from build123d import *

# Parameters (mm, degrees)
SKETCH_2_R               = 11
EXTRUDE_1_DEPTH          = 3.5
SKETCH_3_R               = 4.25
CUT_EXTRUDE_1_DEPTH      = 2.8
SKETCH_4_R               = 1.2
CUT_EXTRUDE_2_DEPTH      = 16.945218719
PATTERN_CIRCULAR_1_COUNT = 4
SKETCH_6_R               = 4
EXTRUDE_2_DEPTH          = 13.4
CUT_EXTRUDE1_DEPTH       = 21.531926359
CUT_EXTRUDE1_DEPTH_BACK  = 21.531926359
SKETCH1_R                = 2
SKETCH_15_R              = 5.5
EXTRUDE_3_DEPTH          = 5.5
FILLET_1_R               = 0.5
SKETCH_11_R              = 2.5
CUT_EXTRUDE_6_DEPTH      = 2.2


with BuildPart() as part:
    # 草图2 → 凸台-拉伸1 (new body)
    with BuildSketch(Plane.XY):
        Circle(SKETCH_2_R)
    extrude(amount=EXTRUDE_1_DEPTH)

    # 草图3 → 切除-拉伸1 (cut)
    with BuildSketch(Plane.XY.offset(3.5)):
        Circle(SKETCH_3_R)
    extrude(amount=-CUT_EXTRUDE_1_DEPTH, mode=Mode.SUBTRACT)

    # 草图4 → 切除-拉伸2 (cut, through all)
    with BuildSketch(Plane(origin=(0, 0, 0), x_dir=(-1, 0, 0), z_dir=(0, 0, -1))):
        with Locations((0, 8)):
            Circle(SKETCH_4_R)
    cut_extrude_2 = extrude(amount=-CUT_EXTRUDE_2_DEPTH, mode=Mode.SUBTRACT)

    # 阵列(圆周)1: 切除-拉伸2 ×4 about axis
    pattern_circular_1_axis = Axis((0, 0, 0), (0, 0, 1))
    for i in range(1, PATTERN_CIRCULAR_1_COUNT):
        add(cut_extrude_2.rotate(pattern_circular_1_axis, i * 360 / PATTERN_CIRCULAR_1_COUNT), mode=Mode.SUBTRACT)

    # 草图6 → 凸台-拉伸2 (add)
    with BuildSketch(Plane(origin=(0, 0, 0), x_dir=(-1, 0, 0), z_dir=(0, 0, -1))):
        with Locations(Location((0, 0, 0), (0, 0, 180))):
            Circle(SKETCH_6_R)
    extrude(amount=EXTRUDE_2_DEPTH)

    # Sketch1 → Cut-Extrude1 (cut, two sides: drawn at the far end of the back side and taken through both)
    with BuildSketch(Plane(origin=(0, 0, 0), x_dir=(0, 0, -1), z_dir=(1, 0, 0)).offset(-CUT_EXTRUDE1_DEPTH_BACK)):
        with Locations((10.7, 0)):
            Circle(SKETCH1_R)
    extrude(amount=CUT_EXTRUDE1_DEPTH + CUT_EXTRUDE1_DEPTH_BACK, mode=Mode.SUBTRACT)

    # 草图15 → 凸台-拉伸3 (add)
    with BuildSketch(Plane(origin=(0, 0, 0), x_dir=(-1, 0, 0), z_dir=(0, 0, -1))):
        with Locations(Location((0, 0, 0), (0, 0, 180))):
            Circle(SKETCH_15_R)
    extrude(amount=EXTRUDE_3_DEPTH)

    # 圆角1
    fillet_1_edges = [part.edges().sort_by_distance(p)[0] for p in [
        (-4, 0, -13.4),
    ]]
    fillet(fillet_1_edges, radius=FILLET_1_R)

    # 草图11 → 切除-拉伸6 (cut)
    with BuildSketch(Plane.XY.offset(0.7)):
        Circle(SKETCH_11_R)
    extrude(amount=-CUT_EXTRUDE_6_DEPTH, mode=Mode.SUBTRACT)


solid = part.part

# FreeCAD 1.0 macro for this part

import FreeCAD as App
import Part
import Sketcher
from FreeCAD import Vector
Q = App.Units.Quantity


def edges_at(feature, points):
    """Names of the edges that pass closest to the given points."""
    edges = feature.Shape.Edges
    near = lambda p: min(range(len(edges)), key=lambda i: edges[i].distToShape(Part.Vertex(*p))[0])
    return sorted({f"Edge{near(p) + 1}" for p in points})

doc = App.newDocument("Part")
body = doc.addObject("PartDesign::Body", "Body")

# Sketch on XY plane
sketch1 = doc.addObject("Sketcher::SketchObject", "Sketch")
body.addObject(sketch1)
sketch1.AttachmentSupport = (doc.XY_Plane, [""])
sketch1.MapMode = "FlatFace"
sketch1.addGeometry(Part.Circle(Vector(0, 0, 0), Vector(0, 0, 1), 11), False)
sketch1.addConstraint([
    Sketcher.Constraint("Coincident", 0, 3, -1, 1),
    Sketcher.Constraint("Diameter", 0, Q("22 mm")),
])
pad1 = doc.addObject("PartDesign::Pad", "Pad")
body.addObject(pad1)
pad1.Profile = sketch1
pad1.Length = 3.5

# Sketch on XY plane
sketch2 = doc.addObject("Sketcher::SketchObject", "Sketch001")
body.addObject(sketch2)
sketch2.AttachmentSupport = (doc.XY_Plane, [""])
sketch2.MapMode = "FlatFace"
sketch2.AttachmentOffset = App.Placement(Vector(0, 0, 3.5), App.Rotation())
sketch2.addGeometry(Part.Circle(Vector(0, 0, 0), Vector(0, 0, 1), 4.2), False)
sketch2.addConstraint([
    Sketcher.Constraint("Coincident", 0, 3, -1, 1),
    Sketcher.Constraint("Diameter", 0, Q("8.5 mm")),
])
pocket1 = doc.addObject("PartDesign::Pocket", "Pocket")
body.addObject(pocket1)
pocket1.Profile = sketch2
pocket1.Length = 2.8

# Sketch on XY plane
sketch3 = doc.addObject("Sketcher::SketchObject", "Sketch002")
body.addObject(sketch3)
sketch3.AttachmentSupport = (doc.XY_Plane, [""])
sketch3.MapMode = "FlatFace"
sketch3.addGeometry(Part.Circle(Vector(0, 8, 0), Vector(0, 0, 1), 1.2), False)
sketch3.addConstraint([
    Sketcher.Constraint("PointOnObject", 0, 3, -2),
    Sketcher.Constraint("Diameter", 0, Q("2.4 mm")),
    Sketcher.Constraint("DistanceY", -1, 1, 0, 3, Q("8 mm")),
])
pocket2 = doc.addObject("PartDesign::Pocket", "Pocket001")
body.addObject(pocket2)
pocket2.Profile = sketch3
pocket2.Type = "ThroughAll"
pocket2.Reversed = True
doc.recompute()

polarpattern = doc.addObject("PartDesign::PolarPattern", "PolarPattern")
body.addObject(polarpattern)
polarpattern.Originals = [pocket2]
polarpattern.Axis = (doc.Z_Axis, [""])
polarpattern.Angle = 360
polarpattern.Occurrences = 4
body.Tip = polarpattern

# Sketch on XY plane
sketch4 = doc.addObject("Sketcher::SketchObject", "Sketch003")
body.addObject(sketch4)
sketch4.AttachmentSupport = (doc.XY_Plane, [""])
sketch4.MapMode = "FlatFace"
sketch4.addGeometry(Part.Circle(Vector(0, 0, 0), Vector(0, 0, 1), 4), False)
sketch4.addConstraint([
    Sketcher.Constraint("Coincident", 0, 3, -1, 1),
    Sketcher.Constraint("Diameter", 0, Q("8 mm")),
])
pad2 = doc.addObject("PartDesign::Pad", "Pad001")
body.addObject(pad2)
pad2.Profile = sketch4
pad2.Length = 13.4
pad2.Reversed = True

# Sketch on YZ plane
sketch5 = doc.addObject("Sketcher::SketchObject", "Sketch004")
body.addObject(sketch5)
sketch5.AttachmentSupport = (doc.YZ_Plane, [""])
sketch5.MapMode = "FlatFace"
sketch5.addGeometry(Part.Circle(Vector(0, -10.7, 0), Vector(0, 0, 1), 2), False)
sketch5.addConstraint([
    Sketcher.Constraint("PointOnObject", 0, 3, -2),
    Sketcher.Constraint("Diameter", 0, Q("4 mm")),
    Sketcher.Constraint("DistanceY", 0, 3, -1, 1, Q("10.7 mm")),
])
pocket3 = doc.addObject("PartDesign::Pocket", "Pocket002")
body.addObject(pocket3)
pocket3.Profile = sketch5
pocket3.Type = "ThroughAll"
pocket3.Midplane = True

# Sketch on XY plane
sketch6 = doc.addObject("Sketcher::SketchObject", "Sketch005")
body.addObject(sketch6)
sketch6.AttachmentSupport = (doc.XY_Plane, [""])
sketch6.MapMode = "FlatFace"
sketch6.addGeometry(Part.Circle(Vector(0, 0, 0), Vector(0, 0, 1), 6), False)
sketch6.addConstraint([
    Sketcher.Constraint("Coincident", 0, 3, -1, 1),
    Sketcher.Constraint("Diameter", 0, Q("11 mm")),
])
pad3 = doc.addObject("PartDesign::Pad", "Pad002")
body.addObject(pad3)
pad3.Profile = sketch6
pad3.Length = 5.5
pad3.Reversed = True
doc.recompute()

fillet = doc.addObject("PartDesign::Fillet", "Fillet")
body.addObject(fillet)
fillet.Base = (pad3, edges_at(pad3, [(-4, 0, -13.4)]))
fillet.Radius = 0.5

# Sketch on XY plane
sketch7 = doc.addObject("Sketcher::SketchObject", "Sketch006")
body.addObject(sketch7)
sketch7.AttachmentSupport = (doc.XY_Plane, [""])
sketch7.MapMode = "FlatFace"
sketch7.AttachmentOffset = App.Placement(Vector(0, 0, 0.7), App.Rotation())
sketch7.addGeometry(Part.Circle(Vector(0, 0, 0), Vector(0, 0, 1), 2.5), False)
sketch7.addConstraint([
    Sketcher.Constraint("Coincident", 0, 3, -1, 1),
    Sketcher.Constraint("Diameter", 0, Q("5 mm")),
])
pocket4 = doc.addObject("PartDesign::Pocket", "Pocket003")
body.addObject(pocket4)
pocket4.Profile = sketch7
pocket4.Length = 2.2

doc.recompute()
